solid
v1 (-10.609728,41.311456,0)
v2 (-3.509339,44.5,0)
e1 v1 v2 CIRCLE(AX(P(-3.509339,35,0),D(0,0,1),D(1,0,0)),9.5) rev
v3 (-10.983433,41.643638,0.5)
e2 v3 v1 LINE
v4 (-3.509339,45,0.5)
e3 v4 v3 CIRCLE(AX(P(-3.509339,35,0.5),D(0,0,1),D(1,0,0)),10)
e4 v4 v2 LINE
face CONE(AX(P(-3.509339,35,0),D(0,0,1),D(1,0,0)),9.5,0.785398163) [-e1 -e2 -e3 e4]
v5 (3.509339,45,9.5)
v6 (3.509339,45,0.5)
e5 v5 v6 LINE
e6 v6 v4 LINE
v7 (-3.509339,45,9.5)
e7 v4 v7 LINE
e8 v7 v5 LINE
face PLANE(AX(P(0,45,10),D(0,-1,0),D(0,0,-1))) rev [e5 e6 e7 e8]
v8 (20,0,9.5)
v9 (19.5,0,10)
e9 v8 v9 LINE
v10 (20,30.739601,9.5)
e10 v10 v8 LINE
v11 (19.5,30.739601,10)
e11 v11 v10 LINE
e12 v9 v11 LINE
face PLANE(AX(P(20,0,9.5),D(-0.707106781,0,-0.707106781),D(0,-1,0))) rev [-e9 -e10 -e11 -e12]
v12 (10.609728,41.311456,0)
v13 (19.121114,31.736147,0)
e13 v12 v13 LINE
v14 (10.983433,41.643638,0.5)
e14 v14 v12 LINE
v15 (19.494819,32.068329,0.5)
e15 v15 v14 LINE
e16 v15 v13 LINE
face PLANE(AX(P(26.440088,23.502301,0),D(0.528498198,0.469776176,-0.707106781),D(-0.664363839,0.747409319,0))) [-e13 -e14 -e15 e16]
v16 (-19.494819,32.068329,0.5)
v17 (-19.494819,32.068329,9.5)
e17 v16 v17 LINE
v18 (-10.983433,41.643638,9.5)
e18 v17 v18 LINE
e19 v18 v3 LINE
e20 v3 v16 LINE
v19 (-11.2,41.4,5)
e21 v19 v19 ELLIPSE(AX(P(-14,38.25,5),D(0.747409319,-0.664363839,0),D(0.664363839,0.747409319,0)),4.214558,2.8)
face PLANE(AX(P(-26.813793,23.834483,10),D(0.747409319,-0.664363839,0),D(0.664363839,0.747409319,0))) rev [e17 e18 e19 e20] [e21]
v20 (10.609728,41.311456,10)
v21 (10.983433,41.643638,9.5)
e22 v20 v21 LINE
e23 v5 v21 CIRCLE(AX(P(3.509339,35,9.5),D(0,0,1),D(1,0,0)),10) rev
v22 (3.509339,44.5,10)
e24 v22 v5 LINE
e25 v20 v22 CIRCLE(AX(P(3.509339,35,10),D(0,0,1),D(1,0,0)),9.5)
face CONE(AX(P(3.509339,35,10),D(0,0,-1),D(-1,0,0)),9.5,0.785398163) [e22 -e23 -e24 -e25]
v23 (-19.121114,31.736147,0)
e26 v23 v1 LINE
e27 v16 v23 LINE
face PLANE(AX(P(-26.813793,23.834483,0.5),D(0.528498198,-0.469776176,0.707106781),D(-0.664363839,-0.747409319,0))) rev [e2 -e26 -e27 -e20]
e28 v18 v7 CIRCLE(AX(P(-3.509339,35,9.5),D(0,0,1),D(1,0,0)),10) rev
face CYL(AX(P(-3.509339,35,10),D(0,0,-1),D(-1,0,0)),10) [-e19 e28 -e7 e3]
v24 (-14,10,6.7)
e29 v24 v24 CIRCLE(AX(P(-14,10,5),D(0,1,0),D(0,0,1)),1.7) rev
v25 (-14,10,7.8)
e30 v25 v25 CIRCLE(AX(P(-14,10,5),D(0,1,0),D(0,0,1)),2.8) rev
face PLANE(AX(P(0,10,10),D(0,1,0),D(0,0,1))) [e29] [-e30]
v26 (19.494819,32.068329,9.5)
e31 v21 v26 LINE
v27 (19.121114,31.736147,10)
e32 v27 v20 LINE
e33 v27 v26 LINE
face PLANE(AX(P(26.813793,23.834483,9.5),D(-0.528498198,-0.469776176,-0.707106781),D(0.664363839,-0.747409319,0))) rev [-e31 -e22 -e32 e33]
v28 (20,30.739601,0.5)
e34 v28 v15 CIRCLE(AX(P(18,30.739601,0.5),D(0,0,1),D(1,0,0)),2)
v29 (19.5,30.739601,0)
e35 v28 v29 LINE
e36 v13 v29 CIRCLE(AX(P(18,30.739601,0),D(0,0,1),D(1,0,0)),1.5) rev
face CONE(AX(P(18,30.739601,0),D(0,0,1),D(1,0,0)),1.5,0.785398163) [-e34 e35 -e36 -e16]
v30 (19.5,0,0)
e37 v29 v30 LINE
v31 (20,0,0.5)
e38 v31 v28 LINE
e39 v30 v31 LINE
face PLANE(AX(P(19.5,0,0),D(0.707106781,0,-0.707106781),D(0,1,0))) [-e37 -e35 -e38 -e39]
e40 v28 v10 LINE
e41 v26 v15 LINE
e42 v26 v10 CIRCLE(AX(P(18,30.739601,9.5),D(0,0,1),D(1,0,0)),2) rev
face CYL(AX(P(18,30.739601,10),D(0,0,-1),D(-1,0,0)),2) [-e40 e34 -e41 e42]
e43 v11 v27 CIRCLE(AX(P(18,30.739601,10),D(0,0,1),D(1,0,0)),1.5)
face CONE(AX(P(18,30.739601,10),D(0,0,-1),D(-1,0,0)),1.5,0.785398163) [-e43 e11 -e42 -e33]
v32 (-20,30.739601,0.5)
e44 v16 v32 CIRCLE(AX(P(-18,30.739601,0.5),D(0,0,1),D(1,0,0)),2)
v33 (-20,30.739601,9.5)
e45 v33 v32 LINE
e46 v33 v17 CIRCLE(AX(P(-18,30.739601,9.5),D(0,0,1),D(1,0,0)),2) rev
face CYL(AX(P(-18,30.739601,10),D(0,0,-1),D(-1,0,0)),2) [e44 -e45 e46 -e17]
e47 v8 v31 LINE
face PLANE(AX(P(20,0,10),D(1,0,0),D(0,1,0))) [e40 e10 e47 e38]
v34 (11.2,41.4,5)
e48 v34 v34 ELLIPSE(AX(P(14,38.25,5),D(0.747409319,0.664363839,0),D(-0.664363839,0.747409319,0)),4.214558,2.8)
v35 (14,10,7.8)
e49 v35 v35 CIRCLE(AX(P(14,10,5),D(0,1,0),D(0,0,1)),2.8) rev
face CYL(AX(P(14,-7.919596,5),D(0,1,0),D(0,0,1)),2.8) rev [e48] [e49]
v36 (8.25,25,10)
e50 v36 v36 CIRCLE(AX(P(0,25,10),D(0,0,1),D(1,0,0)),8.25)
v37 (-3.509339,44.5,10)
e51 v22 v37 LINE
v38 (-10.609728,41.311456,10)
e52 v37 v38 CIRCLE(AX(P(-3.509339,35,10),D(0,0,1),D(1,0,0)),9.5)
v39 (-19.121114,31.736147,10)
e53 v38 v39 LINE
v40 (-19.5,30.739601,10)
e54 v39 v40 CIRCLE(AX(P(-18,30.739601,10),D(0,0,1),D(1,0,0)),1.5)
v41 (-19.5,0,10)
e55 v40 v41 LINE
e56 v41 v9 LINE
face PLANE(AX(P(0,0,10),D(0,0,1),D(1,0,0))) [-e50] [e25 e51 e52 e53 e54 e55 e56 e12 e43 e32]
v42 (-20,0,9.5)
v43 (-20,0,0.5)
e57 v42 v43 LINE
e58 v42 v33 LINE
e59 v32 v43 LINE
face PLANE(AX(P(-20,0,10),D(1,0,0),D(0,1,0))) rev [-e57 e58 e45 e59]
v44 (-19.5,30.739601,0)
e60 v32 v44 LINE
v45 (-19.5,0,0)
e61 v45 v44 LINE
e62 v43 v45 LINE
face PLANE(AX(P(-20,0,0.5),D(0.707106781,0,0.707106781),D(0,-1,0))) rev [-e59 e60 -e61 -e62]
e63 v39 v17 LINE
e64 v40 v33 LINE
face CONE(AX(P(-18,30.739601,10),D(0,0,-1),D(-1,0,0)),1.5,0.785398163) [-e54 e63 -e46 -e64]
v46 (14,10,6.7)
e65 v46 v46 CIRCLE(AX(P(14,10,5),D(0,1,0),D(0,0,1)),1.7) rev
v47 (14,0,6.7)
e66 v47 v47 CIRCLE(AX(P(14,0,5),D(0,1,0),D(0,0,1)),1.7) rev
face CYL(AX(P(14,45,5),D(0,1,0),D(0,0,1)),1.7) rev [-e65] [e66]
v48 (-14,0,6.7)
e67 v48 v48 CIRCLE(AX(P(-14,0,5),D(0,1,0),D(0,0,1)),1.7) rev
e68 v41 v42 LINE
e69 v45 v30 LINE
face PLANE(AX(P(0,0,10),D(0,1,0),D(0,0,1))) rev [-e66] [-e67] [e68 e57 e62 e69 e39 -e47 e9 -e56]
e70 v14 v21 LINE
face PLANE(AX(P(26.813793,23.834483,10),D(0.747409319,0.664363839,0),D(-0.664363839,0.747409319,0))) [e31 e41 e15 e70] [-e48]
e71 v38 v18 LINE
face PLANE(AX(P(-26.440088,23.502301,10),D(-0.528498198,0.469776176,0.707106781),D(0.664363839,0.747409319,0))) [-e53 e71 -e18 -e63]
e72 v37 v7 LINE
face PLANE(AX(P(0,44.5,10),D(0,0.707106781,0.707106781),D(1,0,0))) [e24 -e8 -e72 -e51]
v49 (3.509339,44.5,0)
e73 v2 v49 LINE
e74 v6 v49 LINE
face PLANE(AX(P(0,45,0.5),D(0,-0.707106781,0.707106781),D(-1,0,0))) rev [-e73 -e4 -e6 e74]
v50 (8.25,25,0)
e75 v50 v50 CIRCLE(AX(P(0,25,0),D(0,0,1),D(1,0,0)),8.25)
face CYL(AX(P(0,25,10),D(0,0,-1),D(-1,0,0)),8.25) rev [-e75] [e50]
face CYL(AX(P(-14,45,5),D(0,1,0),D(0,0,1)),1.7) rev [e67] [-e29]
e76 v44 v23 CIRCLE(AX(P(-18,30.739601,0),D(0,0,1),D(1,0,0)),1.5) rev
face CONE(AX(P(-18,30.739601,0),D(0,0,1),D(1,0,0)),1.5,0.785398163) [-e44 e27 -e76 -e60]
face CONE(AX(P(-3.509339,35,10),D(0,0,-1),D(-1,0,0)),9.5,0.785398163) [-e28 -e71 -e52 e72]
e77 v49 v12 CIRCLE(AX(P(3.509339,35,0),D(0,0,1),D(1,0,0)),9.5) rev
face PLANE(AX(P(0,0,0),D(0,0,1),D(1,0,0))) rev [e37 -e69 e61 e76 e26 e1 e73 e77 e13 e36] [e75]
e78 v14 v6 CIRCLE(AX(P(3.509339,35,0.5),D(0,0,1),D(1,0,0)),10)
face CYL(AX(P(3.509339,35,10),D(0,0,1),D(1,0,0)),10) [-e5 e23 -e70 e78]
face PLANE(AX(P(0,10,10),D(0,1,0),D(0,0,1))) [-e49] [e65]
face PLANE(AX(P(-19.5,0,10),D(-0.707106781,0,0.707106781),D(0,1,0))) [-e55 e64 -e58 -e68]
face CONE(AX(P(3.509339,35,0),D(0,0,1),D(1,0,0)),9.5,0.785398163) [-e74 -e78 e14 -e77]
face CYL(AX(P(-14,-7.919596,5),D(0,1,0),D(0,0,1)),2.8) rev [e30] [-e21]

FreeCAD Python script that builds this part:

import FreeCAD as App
import Part
import Sketcher
from FreeCAD import Vector


def edges_at(feature, points):
    """Names of the edges that pass closest to the given points."""
    edges = feature.Shape.Edges
    near = lambda p: min(range(len(edges)), key=lambda i: edges[i].distToShape(Part.Vertex(*p))[0])
    return sorted({f"Edge{near(p) + 1}" for p in points})


def add_polygon(sketch, points):
    """Adds a closed chain of lines whose ends are joined by coincident constraints."""
    first, n = sketch.GeometryCount, len(points)
    for a, b in zip(points, points[1:] + points[:1]):
        sketch.addGeometry(Part.LineSegment(App.Vector(*a, 0), App.Vector(*b, 0)), False)
    for i in range(n):
        sketch.addConstraint(Sketcher.Constraint("Coincident", first + i, 2, first + (i + 1) % n, 1))

doc = App.newDocument("Part")
body = doc.addObject("PartDesign::Body", "Body")

# Sketch on XY plane
sketch1 = doc.addObject("Sketcher::SketchObject", "Sketch")
body.addObject(sketch1)
sketch1.AttachmentSupport = (doc.XY_Plane, [""])
sketch1.MapMode = "FlatFace"
add_polygon(sketch1, [(8, 45), (-8, 45), (-20, 32), (-20, 0), (20, 0), (20, 32)])  # lines 0-5
sketch1.addGeometry(Part.Circle(Vector(0, 25, 0), Vector(0, 0, 1), 8), False)  # 6
sketch1.addConstraint([
    Sketcher.Constraint("Horizontal", 0),
    Sketcher.Constraint("Vertical", 2),
    Sketcher.Constraint("Horizontal", 3),
    Sketcher.Constraint("Vertical", 4),
    Sketcher.Constraint("Symmetric", 2, 2, 3, 2, -1, 1),
    Sketcher.Constraint("PointOnObject", 6, 3, -2),
    Sketcher.Constraint("Horizontal", 1, 2, 4, 2),
    Sketcher.Constraint("Equal", 1, 5),
    Sketcher.Constraint("Diameter", 6, 16.5),
    Sketcher.Constraint("DistanceX", 0, 2, 0, 1, 16.0),
    Sketcher.Constraint("DistanceX", 3, 1, 3, 2, 40.0),
    Sketcher.Constraint("DistanceY", 2, 2, 2, 1, 31.5),
    Sketcher.Constraint("DistanceY", -1, 1, 6, 3, 25.0),
    Sketcher.Constraint("DistanceY", -1, 1, 0, 2, 45.0),
])
pad1 = doc.addObject("PartDesign::Pad", "Pad")
body.addObject(pad1)
pad1.Profile = sketch1
pad1.Length = 10

# Sketch on XZ plane
sketch2 = doc.addObject("Sketcher::SketchObject", "Sketch001")
body.addObject(sketch2)
sketch2.AttachmentSupport = (doc.XZ_Plane, [""])
sketch2.MapMode = "FlatFace"
sketch2.AttachmentOffset = App.Placement(Vector(0, 0, -45), App.Rotation())
sketch2.addGeometry([
    Part.Circle(Vector(-14, 5, 0), Vector(0, 0, 1), 1.7),
    Part.Circle(Vector(14, 5, 0), Vector(0, 0, 1), 1.7),
], False)
sketch2.addConstraint([
    Sketcher.Constraint("Equal", 0, 1),
    Sketcher.Constraint("Symmetric", 0, 3, 1, 3, -2),
    Sketcher.Constraint("Diameter", 0, 3.4),
    Sketcher.Constraint("DistanceX", 0, 3, -1, 1, 14.0),
    Sketcher.Constraint("DistanceY", -1, 1, 0, 3, 5.0),
])
doc.recompute()
hole = doc.addObject("PartDesign::Hole", "Hole")
body.addObject(hole)
hole.Profile = sketch2
hole.ThreadType = "None"
hole.Diameter = 3.4
hole.DepthType = "ThroughAll"
hole.Reversed = True

# Sketch on XZ plane
sketch3 = doc.addObject("Sketcher::SketchObject", "Sketch002")
body.addObject(sketch3)
sketch3.AttachmentSupport = (doc.XZ_Plane, [""])
sketch3.MapMode = "FlatFace"
sketch3.AttachmentOffset = App.Placement(Vector(0, 0, -45), App.Rotation())
sketch3.addGeometry([
    Part.Circle(Vector(14, 5, 0), Vector(0, 0, 1), 2.8),
    Part.Circle(Vector(-14, 5, 0), Vector(0, 0, 1), 2.8),
], False)
sketch3.addConstraint([
    Sketcher.Constraint("Equal", 0, 1),
    Sketcher.Constraint("Symmetric", 0, 3, 1, 3, -2),
    Sketcher.Constraint("Diameter", 0, 5.6),
    Sketcher.Constraint("DistanceX", -1, 1, 0, 3, 14.0),
    Sketcher.Constraint("DistanceY", -1, 1, 0, 3, 5.0),
])
pocket1 = doc.addObject("PartDesign::Pocket", "Pocket")
body.addObject(pocket1)
pocket1.Profile = sketch3
pocket1.Length = 35
pocket1.Reversed = True
doc.recompute()

fillet = doc.addObject("PartDesign::Fillet", "Fillet")
body.addObject(fillet)
fillet.Base = (pocket1, edges_at(pocket1, [(-8, 45, 5), (8, 45, 5)]))
fillet.Radius = 10
doc.recompute()

fillet2 = doc.addObject("PartDesign::Fillet", "Fillet001")
body.addObject(fillet2)
fillet2.Base = (fillet, edges_at(fillet, [(-20, 31.5, 5), (20, 31.5, 5)]))
fillet2.Radius = 2
doc.recompute()

chamfer = doc.addObject("PartDesign::Chamfer", "Chamfer")
body.addObject(chamfer)
chamfer.Base = (fillet2, edges_at(fillet2, [
    (-15.239, 36.856, 0),
    (-15.239, 36.856, 10),
    (0, 45, 0),
    (15.239, 36.856, 0),
    (7.606, 44.122, 0),
    (-7.606, 44.122, 0),
    (0, 45, 10),
    (15.239, 36.856, 10),
    (7.606, 44.122, 10),
    (-7.606, 44.122, 10),
    (-20, 15.37, 0),
    (-20, 15.37, 10),
    (20, 15.37, 0),
    (19.869, 31.45, 0),
    (-19.869, 31.45, 0),
    (20, 15.37, 10),
    (19.869, 31.45, 10),
    (-19.869, 31.45, 10),
]))
chamfer.Size = 0.5

doc.recompute()
